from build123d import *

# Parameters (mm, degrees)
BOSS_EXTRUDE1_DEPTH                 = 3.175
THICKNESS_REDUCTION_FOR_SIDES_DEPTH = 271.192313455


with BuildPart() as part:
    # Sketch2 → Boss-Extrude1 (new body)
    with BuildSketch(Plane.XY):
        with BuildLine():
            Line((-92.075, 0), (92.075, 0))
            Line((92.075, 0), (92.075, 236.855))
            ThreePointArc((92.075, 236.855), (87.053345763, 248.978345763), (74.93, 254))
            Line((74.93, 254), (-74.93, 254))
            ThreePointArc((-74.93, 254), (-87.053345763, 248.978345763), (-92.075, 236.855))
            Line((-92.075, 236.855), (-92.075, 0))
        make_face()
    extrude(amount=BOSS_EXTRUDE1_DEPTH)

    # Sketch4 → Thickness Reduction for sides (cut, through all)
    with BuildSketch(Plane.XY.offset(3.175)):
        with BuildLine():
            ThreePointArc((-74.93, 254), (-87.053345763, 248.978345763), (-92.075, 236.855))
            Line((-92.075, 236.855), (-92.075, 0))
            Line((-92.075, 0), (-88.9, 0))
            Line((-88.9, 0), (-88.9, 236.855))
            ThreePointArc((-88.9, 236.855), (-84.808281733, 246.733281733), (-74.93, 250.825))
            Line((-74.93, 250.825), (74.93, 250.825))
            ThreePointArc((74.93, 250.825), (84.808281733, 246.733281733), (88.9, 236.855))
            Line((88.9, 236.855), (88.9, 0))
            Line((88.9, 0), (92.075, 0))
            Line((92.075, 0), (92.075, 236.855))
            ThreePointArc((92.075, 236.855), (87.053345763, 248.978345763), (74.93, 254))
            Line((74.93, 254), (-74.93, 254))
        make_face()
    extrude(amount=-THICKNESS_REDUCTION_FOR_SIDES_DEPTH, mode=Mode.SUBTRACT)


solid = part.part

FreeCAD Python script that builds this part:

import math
import FreeCAD as App
import Part
import Sketcher

V = App.Vector
Q = App.Units.Quantity

doc = App.newDocument("Part")
params = doc.addObject("Spreadsheet::Sheet", "Params")
for row, (alias, value) in enumerate([
    ("sketch1_width", "5.9 in"),
    ("sketch1_radius", "0.675 in"),
    ("pad1_length", "0.125 in"),
    ("sketch2_radius", "0.55 in"),
    ("sketch2_width", "5.9 in"),
    ("sketch2_radius2", "0.675 in"),
], start=1):
    params.set(f"A{row}", alias)
    params.set(f"B{row}", "=" + value)
    params.setAlias(f"B{row}", alias)

body = doc.addObject("PartDesign::Body", "Body")

# Sketch on XY plane
sketch1 = body.newObject("Sketcher::SketchObject", "Sketch")
sketch1.AttachmentSupport = (doc.getObject("XY_Plane"), [""])
sketch1.MapMode = "FlatFace"
sketch1.addGeometry([
    Part.LineSegment(V(-92, 0, 0), V(92, 0, 0)),  # 0
    Part.LineSegment(V(92, 0, 0), V(92, 237, 0)),  # 1
    Part.ArcOfCircle(Part.Circle(V(75, 237, 0), V(0, 0, 1), 17), math.radians(0), math.radians(90)),  # 2
    Part.LineSegment(V(75, 254, 0), V(-75, 254, 0)),  # 3
    Part.ArcOfCircle(Part.Circle(V(-75, 237, 0), V(0, 0, 1), 17), math.radians(90), math.radians(180)),  # 4
    Part.LineSegment(V(-92, 237, 0), V(-92, 0, 0)),  # 5
], False)
sketch1.addConstraint([
    Sketcher.Constraint("Coincident", 0, 2, 1, 1),
    Sketcher.Constraint("Tangent", 1, 2, 2, 1),
    Sketcher.Constraint("Tangent", 2, 2, 3, 1),
    Sketcher.Constraint("Tangent", 3, 2, 4, 1),
    Sketcher.Constraint("Tangent", 4, 2, 5, 1),
    Sketcher.Constraint("Coincident", 5, 2, 0, 1),
    Sketcher.Constraint("Horizontal", 0),
    Sketcher.Constraint("Vertical", 1),
    Sketcher.Constraint("Horizontal", 3),
    Sketcher.Constraint("Vertical", 5),
    Sketcher.Constraint("Equal", 2, 4),
    Sketcher.Constraint("Symmetric", 0, 2, 5, 2, -1, 1),
    Sketcher.Constraint("DistanceX", 3, 2, 3, 1, Q("5.9 in")),
    Sketcher.Constraint("DistanceY", -1, 1, 2, 2, Q("10 in")),
    Sketcher.Constraint("Radius", 2, Q("0.675 in")),
])
sketch1.setExpression("Constraints[12]", "Params.sketch1_width")
sketch1.setExpression("Constraints[14]", "Params.sketch1_radius")
pad1 = body.newObject("PartDesign::Pad", "Pad")
pad1.Profile = sketch1
pad1.setExpression("Length", "Params.pad1_length")

# Sketch on XY plane
sketch2 = body.newObject("Sketcher::SketchObject", "Sketch001")
sketch2.AttachmentSupport = (doc.getObject("XY_Plane"), [""])
sketch2.MapMode = "FlatFace"
sketch2.AttachmentOffset = App.Placement(V(0, 0, 0.125 * 25.4), App.Rotation())
sketch2.addGeometry([
    Part.ArcOfCircle(Part.Circle(V(-74.9, 236.9, 0), V(0, 0, 1), 17.1), math.radians(90), math.radians(180)),  # 0
    Part.LineSegment(V(-92.1, 236.9, 0), V(-92.1, 0, 0)),  # 1
    Part.LineSegment(V(-92.1, 0, 0), V(-88.9, 0, 0)),  # 2
    Part.LineSegment(V(-88.9, 0, 0), V(-88.9, 236.9, 0)),  # 3
    Part.ArcOfCircle(Part.Circle(V(-74.9, 236.9, 0), V(0, 0, 1), 14), math.radians(90), math.radians(180)),  # 4
    Part.LineSegment(V(-74.9, 250.8, 0), V(74.9, 250.8, 0)),  # 5
    Part.ArcOfCircle(Part.Circle(V(74.9, 236.9, 0), V(0, 0, 1), 14), math.radians(0), math.radians(90)),  # 6
    Part.LineSegment(V(88.9, 236.9, 0), V(88.9, 0, 0)),  # 7
    Part.LineSegment(V(88.9, 0, 0), V(92.1, 0, 0)),  # 8
    Part.LineSegment(V(92.1, 0, 0), V(92.1, 236.9, 0)),  # 9
    Part.ArcOfCircle(Part.Circle(V(74.9, 236.9, 0), V(0, 0, 1), 17.1), math.radians(0), math.radians(90)),  # 10
    Part.LineSegment(V(74.9, 254, 0), V(-74.9, 254, 0)),  # 11
], False)
sketch2.addConstraint([
    Sketcher.Constraint("Tangent", 0, 2, 1, 1),
    Sketcher.Constraint("Coincident", 1, 2, 2, 1),
    Sketcher.Constraint("Coincident", 2, 2, 3, 1),
    Sketcher.Constraint("Tangent", 3, 2, 4, 2),
    Sketcher.Constraint("Tangent", 4, 1, 5, 1),
    Sketcher.Constraint("Tangent", 5, 2, 6, 2),
    Sketcher.Constraint("Tangent", 6, 1, 7, 1),
    Sketcher.Constraint("Coincident", 7, 2, 8, 1),
    Sketcher.Constraint("Coincident", 8, 2, 9, 1),
    Sketcher.Constraint("Tangent", 9, 2, 10, 1),
    Sketcher.Constraint("Tangent", 10, 2, 11, 1),
    Sketcher.Constraint("Tangent", 11, 2, 0, 1),
    Sketcher.Constraint("Vertical", 1),
    Sketcher.Constraint("Horizontal", 2),
    Sketcher.Constraint("Vertical", 3),
    Sketcher.Constraint("Horizontal", 5),
    Sketcher.Constraint("Vertical", 7),
    Sketcher.Constraint("Horizontal", 8),
    Sketcher.Constraint("Vertical", 9),
    Sketcher.Constraint("Horizontal", 11),
    Sketcher.Constraint("Coincident", 4, 3, 0, 3),
    Sketcher.Constraint("Coincident", 10, 3, 6, 3),
    Sketcher.Constraint("Equal", 4, 6),
    Sketcher.Constraint("Symmetric", 2, 2, 7, 2, -1, 1),
    Sketcher.Constraint("PointOnObject", 1, 2, -1),
    Sketcher.Constraint("Radius", 4, Q("0.55 in")),
    Sketcher.Constraint("DistanceX", 5, 1, 5, 2, Q("5.9 in")),
    Sketcher.Constraint("DistanceY", -1, 1, 10, 2, Q("10 in")),
    Sketcher.Constraint("Radius", 0, Q("0.675 in")),
])
sketch2.setExpression("Constraints[25]", "Params.sketch2_radius")
sketch2.setExpression("Constraints[26]", "Params.sketch2_width")
sketch2.setExpression("Constraints[28]", "Params.sketch2_radius2")
pocket1 = body.newObject("PartDesign::Pocket", "Pocket")
pocket1.Profile = sketch2
pocket1.Type = "ThroughAll"

doc.recompute()
